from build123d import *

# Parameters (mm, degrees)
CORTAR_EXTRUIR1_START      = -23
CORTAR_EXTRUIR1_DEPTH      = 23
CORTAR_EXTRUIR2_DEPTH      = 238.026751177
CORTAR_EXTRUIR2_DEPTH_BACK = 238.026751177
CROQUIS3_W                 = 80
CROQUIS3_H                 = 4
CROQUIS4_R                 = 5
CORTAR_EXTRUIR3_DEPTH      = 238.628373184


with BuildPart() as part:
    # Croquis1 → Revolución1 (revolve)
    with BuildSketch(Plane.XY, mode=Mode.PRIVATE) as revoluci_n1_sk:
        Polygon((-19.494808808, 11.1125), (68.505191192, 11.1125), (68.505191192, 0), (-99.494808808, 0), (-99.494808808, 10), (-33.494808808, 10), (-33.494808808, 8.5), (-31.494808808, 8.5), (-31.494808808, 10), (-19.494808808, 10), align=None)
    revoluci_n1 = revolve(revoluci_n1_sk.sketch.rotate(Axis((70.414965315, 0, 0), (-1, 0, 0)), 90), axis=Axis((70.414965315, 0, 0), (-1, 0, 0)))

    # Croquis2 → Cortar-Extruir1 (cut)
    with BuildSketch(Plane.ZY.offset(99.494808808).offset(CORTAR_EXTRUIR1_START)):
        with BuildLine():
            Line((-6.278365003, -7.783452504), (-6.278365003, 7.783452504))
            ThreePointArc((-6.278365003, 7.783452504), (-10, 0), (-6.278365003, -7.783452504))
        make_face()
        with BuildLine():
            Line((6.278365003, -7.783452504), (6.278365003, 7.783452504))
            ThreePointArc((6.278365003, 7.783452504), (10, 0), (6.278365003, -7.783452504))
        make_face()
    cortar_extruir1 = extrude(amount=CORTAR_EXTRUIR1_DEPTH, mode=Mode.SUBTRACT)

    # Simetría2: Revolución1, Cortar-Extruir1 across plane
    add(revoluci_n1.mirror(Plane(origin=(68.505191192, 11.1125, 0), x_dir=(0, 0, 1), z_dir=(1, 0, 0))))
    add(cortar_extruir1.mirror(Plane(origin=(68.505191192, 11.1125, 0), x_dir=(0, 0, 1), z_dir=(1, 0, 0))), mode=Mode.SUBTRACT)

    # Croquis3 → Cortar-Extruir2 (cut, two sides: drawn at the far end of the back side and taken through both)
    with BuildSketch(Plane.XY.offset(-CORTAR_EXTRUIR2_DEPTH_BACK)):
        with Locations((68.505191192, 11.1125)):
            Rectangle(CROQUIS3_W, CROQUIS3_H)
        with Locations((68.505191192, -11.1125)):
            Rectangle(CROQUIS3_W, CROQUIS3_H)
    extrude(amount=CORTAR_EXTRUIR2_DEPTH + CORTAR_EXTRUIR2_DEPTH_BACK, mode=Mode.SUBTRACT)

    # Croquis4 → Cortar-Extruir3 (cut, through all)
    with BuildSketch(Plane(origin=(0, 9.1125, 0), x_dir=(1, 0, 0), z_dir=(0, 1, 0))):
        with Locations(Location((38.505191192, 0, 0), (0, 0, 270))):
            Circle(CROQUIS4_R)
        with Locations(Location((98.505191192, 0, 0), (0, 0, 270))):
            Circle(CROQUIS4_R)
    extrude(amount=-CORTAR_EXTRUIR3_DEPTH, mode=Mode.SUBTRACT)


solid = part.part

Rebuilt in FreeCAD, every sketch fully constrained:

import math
import FreeCAD as App
import Part
import Sketcher
from FreeCAD import Vector


def add_polygon(sketch, points):
    """Adds a closed chain of lines whose ends are joined by coincident constraints."""
    first, n = sketch.GeometryCount, len(points)
    for a, b in zip(points, points[1:] + points[:1]):
        sketch.addGeometry(Part.LineSegment(App.Vector(*a, 0), App.Vector(*b, 0)), False)
    for i in range(n):
        sketch.addConstraint(Sketcher.Constraint("Coincident", first + i, 2, first + (i + 1) % n, 1))

doc = App.newDocument("Part")
body = doc.addObject("PartDesign::Body", "Body")

sketch1 = doc.addObject("Sketcher::SketchObject", "Sketch")
body.addObject(sketch1)
sketch1.AttachmentSupport = (doc.XY_Plane, [""])
sketch1.MapMode = "FlatFace"
add_polygon(sketch1, [(68.5, 11.1), (-19.5, 11.1), (-19.5, 10), (-31.5, 10), (-31.5, 8.5), (-33.5, 8.5), (-33.5, 10), (-99.5, 10), (-99.5, 0), (68.5, 0)])
sketch1.addConstraint([
    Sketcher.Constraint("Horizontal", 0),
    Sketcher.Constraint("Vertical", 1),
    Sketcher.Constraint("Horizontal", 2),
    Sketcher.Constraint("Vertical", 3),
    Sketcher.Constraint("Horizontal", 4),
    Sketcher.Constraint("Vertical", 5),
    Sketcher.Constraint("Horizontal", 6),
    Sketcher.Constraint("Vertical", 7),
    Sketcher.Constraint("Horizontal", 8),
    Sketcher.Constraint("Vertical", 9),
    Sketcher.Constraint("PointOnObject", 7, 2, -1),
    Sketcher.Constraint("Horizontal", 2, 2, 5, 2),
    Sketcher.Constraint("DistanceX", 0, 2, 0, 1, 88.0),
    Sketcher.Constraint("DistanceX", 2, 2, 2, 1, 12.0),
    Sketcher.Constraint("DistanceX", 4, 2, 4, 1, 2.0),
    Sketcher.Constraint("DistanceX", 6, 2, 6, 1, 66.0),
    Sketcher.Constraint("DistanceY", 7, 2, 7, 1, 10.0),
    Sketcher.Constraint("DistanceY", 3, 2, 3, 1, 1.5),
    Sketcher.Constraint("DistanceY", 1, 2, 1, 1, 1.1125),
    Sketcher.Constraint("DistanceX", 0, 2, -1, 1, 19.494809),
])
revolution = doc.addObject("PartDesign::Revolution", "Revolution")
body.addObject(revolution)
revolution.Profile = sketch1
revolution.ReferenceAxis = (sketch1, ["H_Axis"])
revolution.Angle = 360

sketch2 = doc.addObject("Sketcher::SketchObject", "Sketch001")
body.addObject(sketch2)
sketch2.AttachmentSupport = (doc.YZ_Plane, [""])
sketch2.MapMode = "FlatFace"
sketch2.AttachmentOffset = App.Placement(Vector(0, 0, -76.494809), App.Rotation())
sketch2.addGeometry([
    Part.LineSegment(Vector(-8, -6, 0), Vector(8, -6, 0)),
    Part.ArcOfCircle(Part.Circle(Vector(0, 0, 0), Vector(0, 0, 1), 10), math.radians(-141), math.radians(-39)),
    Part.LineSegment(Vector(8, 6, 0), Vector(-8, 6, 0)),
    Part.ArcOfCircle(Part.Circle(Vector(0, 0, 0), Vector(0, 0, 1), 10), math.radians(39), math.radians(141)),
], False)
sketch2.addConstraint([
    Sketcher.Constraint("Coincident", 0, 1, 1, 1),
    Sketcher.Constraint("Coincident", 1, 2, 0, 2),
    Sketcher.Constraint("Coincident", 2, 1, 3, 1),
    Sketcher.Constraint("Coincident", 3, 2, 2, 2),
    Sketcher.Constraint("Horizontal", 0),
    Sketcher.Constraint("Horizontal", 2),
    Sketcher.Constraint("Coincident", 1, 3, -1, 1),
    Sketcher.Constraint("Coincident", 3, 3, -1, 1),
    Sketcher.Constraint("Equal", 1, 3),
    Sketcher.Constraint("Vertical", 1, 2, 2, 1),
    Sketcher.Constraint("Radius", 1, 10.0),
    Sketcher.Constraint("DistanceX", 0, 1, 0, 2, 15.566905),
])
pocket1 = doc.addObject("PartDesign::Pocket", "Pocket")
body.addObject(pocket1)
pocket1.Profile = sketch2
pocket1.Length = 23
doc.recompute()

datumplane = doc.addObject("PartDesign::Plane", "DatumPlane")
body.addObject(datumplane)
datumplane.AttachmentSupport = (doc.YZ_Plane, [""])
datumplane.MapMode = "FlatFace"
datumplane.AttachmentOffset = App.Placement(Vector(0, 0, 68.505191), App.Rotation())
mirrored = doc.addObject("PartDesign::Mirrored", "Mirrored")
body.addObject(mirrored)
mirrored.Originals = [revolution, pocket1]
mirrored.MirrorPlane = (datumplane, [""])
body.Tip = mirrored

sketch3 = doc.addObject("Sketcher::SketchObject", "Sketch002")
body.addObject(sketch3)
sketch3.AttachmentSupport = (doc.XY_Plane, [""])
sketch3.MapMode = "FlatFace"
add_polygon(sketch3, [(28.5, 13.1), (28.5, 9.1), (108.5, 9.1), (108.5, 13.1)])
add_polygon(sketch3, [(28.5, -9.1), (28.5, -13.1), (108.5, -13.1), (108.5, -9.1)])
sketch3.addConstraint([
    Sketcher.Constraint("Vertical", 0),
    Sketcher.Constraint("Horizontal", 1),
    Sketcher.Constraint("Vertical", 2),
    Sketcher.Constraint("Horizontal", 3),
    Sketcher.Constraint("Vertical", 4),
    Sketcher.Constraint("Horizontal", 5),
    Sketcher.Constraint("Vertical", 6),
    Sketcher.Constraint("Horizontal", 7),
    Sketcher.Constraint("Symmetric", 3, 2, 4, 2, -1),
    Sketcher.Constraint("Symmetric", 1, 2, 6, 2, -1),
    Sketcher.Constraint("DistanceX", 1, 1, 1, 2, 80.0),
    Sketcher.Constraint("DistanceY", 0, 2, 0, 1, 4.0),
    Sketcher.Constraint("DistanceY", 4, 2, 0, 2, 22.225),
    Sketcher.Constraint("DistanceX", -1, 1, 0, 2, 28.505191),
])
pocket2 = doc.addObject("PartDesign::Pocket", "Pocket001")
body.addObject(pocket2)
pocket2.Profile = sketch3
pocket2.Type = "ThroughAll"
pocket2.Midplane = True

sketch4 = doc.addObject("Sketcher::SketchObject", "Sketch003")
body.addObject(sketch4)
sketch4.AttachmentSupport = (doc.XZ_Plane, [""])
sketch4.MapMode = "FlatFace"
sketch4.AttachmentOffset = App.Placement(Vector(0, 0, -9.1125), App.Rotation())
sketch4.addGeometry([
    Part.Circle(Vector(39, 0, 0), Vector(0, 0, 1), 5),
    Part.Circle(Vector(99, 0, 0), Vector(0, 0, 1), 5),
], False)
sketch4.addConstraint([
    Sketcher.Constraint("Equal", 0, 1),
    Sketcher.Constraint("PointOnObject", 0, 3, -1),
    Sketcher.Constraint("PointOnObject", 1, 3, -1),
    Sketcher.Constraint("Diameter", 0, 10.0),
    Sketcher.Constraint("DistanceX", 0, 3, 1, 3, 60.0),
    Sketcher.Constraint("DistanceX", -1, 1, 0, 3, 38.505191),
])
pocket3 = doc.addObject("PartDesign::Pocket", "Pocket002")
body.addObject(pocket3)
pocket3.Profile = sketch4
pocket3.Type = "ThroughAll"
pocket3.Reversed = True

doc.recompute()
